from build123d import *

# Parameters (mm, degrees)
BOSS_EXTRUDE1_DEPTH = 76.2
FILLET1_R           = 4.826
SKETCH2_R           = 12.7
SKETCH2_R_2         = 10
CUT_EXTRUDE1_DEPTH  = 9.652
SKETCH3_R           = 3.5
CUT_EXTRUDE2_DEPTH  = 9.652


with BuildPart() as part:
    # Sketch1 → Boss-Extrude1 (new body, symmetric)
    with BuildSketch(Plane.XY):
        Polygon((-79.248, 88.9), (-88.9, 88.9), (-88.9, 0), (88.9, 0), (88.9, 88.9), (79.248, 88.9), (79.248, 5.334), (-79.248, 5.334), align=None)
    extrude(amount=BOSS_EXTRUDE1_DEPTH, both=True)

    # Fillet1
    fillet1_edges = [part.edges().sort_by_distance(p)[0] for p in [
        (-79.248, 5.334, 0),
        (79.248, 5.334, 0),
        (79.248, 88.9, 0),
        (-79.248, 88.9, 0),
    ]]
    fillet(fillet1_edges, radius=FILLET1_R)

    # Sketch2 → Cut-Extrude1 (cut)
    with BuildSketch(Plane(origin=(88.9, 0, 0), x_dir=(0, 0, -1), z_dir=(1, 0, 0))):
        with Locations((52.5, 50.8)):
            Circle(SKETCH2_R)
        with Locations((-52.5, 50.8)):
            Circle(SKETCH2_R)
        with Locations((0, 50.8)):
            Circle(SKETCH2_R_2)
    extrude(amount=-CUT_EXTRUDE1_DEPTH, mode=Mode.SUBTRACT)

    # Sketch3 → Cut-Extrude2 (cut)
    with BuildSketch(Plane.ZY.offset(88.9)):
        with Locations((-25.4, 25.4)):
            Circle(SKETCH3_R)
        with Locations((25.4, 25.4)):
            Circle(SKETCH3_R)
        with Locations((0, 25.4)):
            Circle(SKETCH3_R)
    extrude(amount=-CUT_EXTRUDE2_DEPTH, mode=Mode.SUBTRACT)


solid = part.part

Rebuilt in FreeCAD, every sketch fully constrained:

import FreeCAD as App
import Part
import Sketcher

V = App.Vector
Q = App.Units.Quantity


def edges_at(feature, points):
    """Names of the edges that pass closest to the given points."""
    edges = feature.Shape.Edges
    near = lambda p: min(range(len(edges)), key=lambda i: edges[i].distToShape(Part.Vertex(*p))[0])
    return sorted({f"Edge{near(p) + 1}" for p in points})

doc = App.newDocument("Part")
params = doc.addObject("Spreadsheet::Sheet", "Params")
for row, (alias, value) in enumerate([
    ("sketch1_width", "7 in"),
    ("sketch1_height", "3.5 in"),
    ("sketch1_width2", "0.38 in"),
    ("sketch1_height2", "3.29 in"),
    ("pad1_length", "6 in"),
    ("fillet_radius", "0.19 in"),
    ("sketch2_diameter", "1 in"),
    ("pocket1_length", "0.38 in"),
    ("pocket2_length", "0.38 in"),
], start=1):
    params.set(f"A{row}", alias)
    params.set(f"B{row}", "=" + value)
    params.setAlias(f"B{row}", alias)

body = doc.addObject("PartDesign::Body", "Body")

# Sketch on XY plane
sketch1 = body.newObject("Sketcher::SketchObject", "Sketch")
sketch1.AttachmentSupport = (doc.getObject("XY_Plane"), [""])
sketch1.MapMode = "FlatFace"
sketch1.addGeometry(Part.LineSegment(V(-79, 89, 0), V(-89, 89, 0)), False)
sketch1.addGeometry(Part.LineSegment(V(-89, 89, 0), V(-89, 0, 0)), False)
sketch1.addGeometry(Part.LineSegment(V(-89, 0, 0), V(89, 0, 0)), False)
sketch1.addGeometry(Part.LineSegment(V(89, 0, 0), V(89, 89, 0)), False)
sketch1.addGeometry(Part.LineSegment(V(89, 89, 0), V(79, 89, 0)), False)
sketch1.addGeometry(Part.LineSegment(V(79, 89, 0), V(79, 5, 0)), False)
sketch1.addGeometry(Part.LineSegment(V(79, 5, 0), V(-79, 5, 0)), False)
sketch1.addGeometry(Part.LineSegment(V(-79, 5, 0), V(-79, 89, 0)), False)
sketch1.addConstraint(Sketcher.Constraint("Coincident", 0, 2, 1, 1))
sketch1.addConstraint(Sketcher.Constraint("Coincident", 1, 2, 2, 1))
sketch1.addConstraint(Sketcher.Constraint("Coincident", 2, 2, 3, 1))
sketch1.addConstraint(Sketcher.Constraint("Coincident", 3, 2, 4, 1))
sketch1.addConstraint(Sketcher.Constraint("Coincident", 4, 2, 5, 1))
sketch1.addConstraint(Sketcher.Constraint("Coincident", 5, 2, 6, 1))
sketch1.addConstraint(Sketcher.Constraint("Coincident", 6, 2, 7, 1))
sketch1.addConstraint(Sketcher.Constraint("Coincident", 7, 2, 0, 1))
sketch1.addConstraint(Sketcher.Constraint("Horizontal", 0))
sketch1.addConstraint(Sketcher.Constraint("Vertical", 1))
sketch1.addConstraint(Sketcher.Constraint("Horizontal", 2))
sketch1.addConstraint(Sketcher.Constraint("Vertical", 3))
sketch1.addConstraint(Sketcher.Constraint("Horizontal", 4))
sketch1.addConstraint(Sketcher.Constraint("Vertical", 5))
sketch1.addConstraint(Sketcher.Constraint("Horizontal", 6))
sketch1.addConstraint(Sketcher.Constraint("Vertical", 7))
sketch1.addConstraint(Sketcher.Constraint("Symmetric", 1, 2, 2, 2, -1, 1))
sketch1.addConstraint(Sketcher.Constraint("Symmetric", 4, 2, 7, 2, -2))
sketch1.addConstraint(Sketcher.Constraint("DistanceX", 2, 1, 2, 2, Q("7 in")))
sketch1.addConstraint(Sketcher.Constraint("DistanceY", 1, 2, 1, 1, Q("3.5 in")))
sketch1.addConstraint(Sketcher.Constraint("DistanceX", 0, 2, 0, 1, Q("0.38 in")))
sketch1.addConstraint(Sketcher.Constraint("DistanceY", 5, 2, 5, 1, Q("3.29 in")))
sketch1.setExpression("Constraints[18]", "Params.sketch1_width")
sketch1.setExpression("Constraints[19]", "Params.sketch1_height")
sketch1.setExpression("Constraints[20]", "Params.sketch1_width2")
sketch1.setExpression("Constraints[21]", "Params.sketch1_height2")
pad1 = body.newObject("PartDesign::Pad", "Pad")
pad1.Profile = sketch1
pad1.setExpression("Length", "Params.pad1_length")
pad1.Midplane = True
doc.recompute()

fillet = body.newObject("PartDesign::Fillet", "Fillet")
fillet.Base = (pad1, edges_at(pad1, [
    (-79.248, 5.334, 0),
    (79.248, 5.334, 0),
    (79.248, 88.9, 0),
    (-79.248, 88.9, 0),
]))
fillet.setExpression("Radius", "Params.fillet_radius")

# Sketch on YZ plane
sketch2 = body.newObject("Sketcher::SketchObject", "Sketch001")
sketch2.AttachmentSupport = (doc.getObject("YZ_Plane"), [""])
sketch2.MapMode = "FlatFace"
sketch2.AttachmentOffset = App.Placement(V(0, 0, 3.5 * 25.4), App.Rotation())
sketch2.addGeometry(Part.Circle(V(51, -52, 0), V(0, 0, 1), 13), False)
sketch2.addGeometry(Part.Circle(V(51, 52, 0), V(0, 0, 1), 13), False)
sketch2.addGeometry(Part.Circle(V(51, 0, 0), V(0, 0, 1), 10), False)
sketch2.addConstraint(Sketcher.Constraint("Equal", 0, 1))
sketch2.addConstraint(Sketcher.Constraint("Symmetric", 0, 3, 1, 3, -1))
sketch2.addConstraint(Sketcher.Constraint("PointOnObject", 2, 3, -1))
sketch2.addConstraint(Sketcher.Constraint("Vertical", 1, 3, 2, 3))
sketch2.addConstraint(Sketcher.Constraint("Diameter", 0, Q("1 in")))
sketch2.addConstraint(Sketcher.Constraint("DistanceX", -1, 1, 0, 3, Q("2 in")))
sketch2.addConstraint(Sketcher.Constraint("Diameter", 2, 20.0))
sketch2.addConstraint(Sketcher.Constraint("DistanceY", 0, 3, -1, 1, 52.5))
sketch2.setExpression("Constraints[4]", "Params.sketch2_diameter")
pocket1 = body.newObject("PartDesign::Pocket", "Pocket")
pocket1.Profile = sketch2
pocket1.setExpression("Length", "Params.pocket1_length")

# Sketch on YZ plane
sketch3 = body.newObject("Sketcher::SketchObject", "Sketch002")
sketch3.AttachmentSupport = (doc.getObject("YZ_Plane"), [""])
sketch3.MapMode = "FlatFace"
sketch3.AttachmentOffset = App.Placement(V(0, 0, -3.5 * 25.4), App.Rotation())
sketch3.addGeometry(Part.Circle(V(25.4, -25.4, 0), V(0, 0, 1), 3.5), False)
sketch3.addGeometry(Part.Circle(V(25.4, 25.4, 0), V(0, 0, 1), 3.5), False)
sketch3.addGeometry(Part.Circle(V(25.4, 0, 0), V(0, 0, 1), 3.5), False)
sketch3.addConstraint(Sketcher.Constraint("Equal", 0, 1))
sketch3.addConstraint(Sketcher.Constraint("Equal", 1, 2))
sketch3.addConstraint(Sketcher.Constraint("Symmetric", 0, 3, 1, 3, -1))
sketch3.addConstraint(Sketcher.Constraint("PointOnObject", 2, 3, -1))
sketch3.addConstraint(Sketcher.Constraint("Vertical", 1, 3, 2, 3))
sketch3.addConstraint(Sketcher.Constraint("DistanceX", -1, 1, 0, 3, Q("1 in")))
sketch3.addConstraint(Sketcher.Constraint("DistanceY", 0, 3, -1, 1, Q("1 in")))
sketch3.addConstraint(Sketcher.Constraint("Diameter", 0, 7.0))
pocket2 = body.newObject("PartDesign::Pocket", "Pocket001")
pocket2.Profile = sketch3
pocket2.setExpression("Length", "Params.pocket2_length")
pocket2.Reversed = True

doc.recompute()
